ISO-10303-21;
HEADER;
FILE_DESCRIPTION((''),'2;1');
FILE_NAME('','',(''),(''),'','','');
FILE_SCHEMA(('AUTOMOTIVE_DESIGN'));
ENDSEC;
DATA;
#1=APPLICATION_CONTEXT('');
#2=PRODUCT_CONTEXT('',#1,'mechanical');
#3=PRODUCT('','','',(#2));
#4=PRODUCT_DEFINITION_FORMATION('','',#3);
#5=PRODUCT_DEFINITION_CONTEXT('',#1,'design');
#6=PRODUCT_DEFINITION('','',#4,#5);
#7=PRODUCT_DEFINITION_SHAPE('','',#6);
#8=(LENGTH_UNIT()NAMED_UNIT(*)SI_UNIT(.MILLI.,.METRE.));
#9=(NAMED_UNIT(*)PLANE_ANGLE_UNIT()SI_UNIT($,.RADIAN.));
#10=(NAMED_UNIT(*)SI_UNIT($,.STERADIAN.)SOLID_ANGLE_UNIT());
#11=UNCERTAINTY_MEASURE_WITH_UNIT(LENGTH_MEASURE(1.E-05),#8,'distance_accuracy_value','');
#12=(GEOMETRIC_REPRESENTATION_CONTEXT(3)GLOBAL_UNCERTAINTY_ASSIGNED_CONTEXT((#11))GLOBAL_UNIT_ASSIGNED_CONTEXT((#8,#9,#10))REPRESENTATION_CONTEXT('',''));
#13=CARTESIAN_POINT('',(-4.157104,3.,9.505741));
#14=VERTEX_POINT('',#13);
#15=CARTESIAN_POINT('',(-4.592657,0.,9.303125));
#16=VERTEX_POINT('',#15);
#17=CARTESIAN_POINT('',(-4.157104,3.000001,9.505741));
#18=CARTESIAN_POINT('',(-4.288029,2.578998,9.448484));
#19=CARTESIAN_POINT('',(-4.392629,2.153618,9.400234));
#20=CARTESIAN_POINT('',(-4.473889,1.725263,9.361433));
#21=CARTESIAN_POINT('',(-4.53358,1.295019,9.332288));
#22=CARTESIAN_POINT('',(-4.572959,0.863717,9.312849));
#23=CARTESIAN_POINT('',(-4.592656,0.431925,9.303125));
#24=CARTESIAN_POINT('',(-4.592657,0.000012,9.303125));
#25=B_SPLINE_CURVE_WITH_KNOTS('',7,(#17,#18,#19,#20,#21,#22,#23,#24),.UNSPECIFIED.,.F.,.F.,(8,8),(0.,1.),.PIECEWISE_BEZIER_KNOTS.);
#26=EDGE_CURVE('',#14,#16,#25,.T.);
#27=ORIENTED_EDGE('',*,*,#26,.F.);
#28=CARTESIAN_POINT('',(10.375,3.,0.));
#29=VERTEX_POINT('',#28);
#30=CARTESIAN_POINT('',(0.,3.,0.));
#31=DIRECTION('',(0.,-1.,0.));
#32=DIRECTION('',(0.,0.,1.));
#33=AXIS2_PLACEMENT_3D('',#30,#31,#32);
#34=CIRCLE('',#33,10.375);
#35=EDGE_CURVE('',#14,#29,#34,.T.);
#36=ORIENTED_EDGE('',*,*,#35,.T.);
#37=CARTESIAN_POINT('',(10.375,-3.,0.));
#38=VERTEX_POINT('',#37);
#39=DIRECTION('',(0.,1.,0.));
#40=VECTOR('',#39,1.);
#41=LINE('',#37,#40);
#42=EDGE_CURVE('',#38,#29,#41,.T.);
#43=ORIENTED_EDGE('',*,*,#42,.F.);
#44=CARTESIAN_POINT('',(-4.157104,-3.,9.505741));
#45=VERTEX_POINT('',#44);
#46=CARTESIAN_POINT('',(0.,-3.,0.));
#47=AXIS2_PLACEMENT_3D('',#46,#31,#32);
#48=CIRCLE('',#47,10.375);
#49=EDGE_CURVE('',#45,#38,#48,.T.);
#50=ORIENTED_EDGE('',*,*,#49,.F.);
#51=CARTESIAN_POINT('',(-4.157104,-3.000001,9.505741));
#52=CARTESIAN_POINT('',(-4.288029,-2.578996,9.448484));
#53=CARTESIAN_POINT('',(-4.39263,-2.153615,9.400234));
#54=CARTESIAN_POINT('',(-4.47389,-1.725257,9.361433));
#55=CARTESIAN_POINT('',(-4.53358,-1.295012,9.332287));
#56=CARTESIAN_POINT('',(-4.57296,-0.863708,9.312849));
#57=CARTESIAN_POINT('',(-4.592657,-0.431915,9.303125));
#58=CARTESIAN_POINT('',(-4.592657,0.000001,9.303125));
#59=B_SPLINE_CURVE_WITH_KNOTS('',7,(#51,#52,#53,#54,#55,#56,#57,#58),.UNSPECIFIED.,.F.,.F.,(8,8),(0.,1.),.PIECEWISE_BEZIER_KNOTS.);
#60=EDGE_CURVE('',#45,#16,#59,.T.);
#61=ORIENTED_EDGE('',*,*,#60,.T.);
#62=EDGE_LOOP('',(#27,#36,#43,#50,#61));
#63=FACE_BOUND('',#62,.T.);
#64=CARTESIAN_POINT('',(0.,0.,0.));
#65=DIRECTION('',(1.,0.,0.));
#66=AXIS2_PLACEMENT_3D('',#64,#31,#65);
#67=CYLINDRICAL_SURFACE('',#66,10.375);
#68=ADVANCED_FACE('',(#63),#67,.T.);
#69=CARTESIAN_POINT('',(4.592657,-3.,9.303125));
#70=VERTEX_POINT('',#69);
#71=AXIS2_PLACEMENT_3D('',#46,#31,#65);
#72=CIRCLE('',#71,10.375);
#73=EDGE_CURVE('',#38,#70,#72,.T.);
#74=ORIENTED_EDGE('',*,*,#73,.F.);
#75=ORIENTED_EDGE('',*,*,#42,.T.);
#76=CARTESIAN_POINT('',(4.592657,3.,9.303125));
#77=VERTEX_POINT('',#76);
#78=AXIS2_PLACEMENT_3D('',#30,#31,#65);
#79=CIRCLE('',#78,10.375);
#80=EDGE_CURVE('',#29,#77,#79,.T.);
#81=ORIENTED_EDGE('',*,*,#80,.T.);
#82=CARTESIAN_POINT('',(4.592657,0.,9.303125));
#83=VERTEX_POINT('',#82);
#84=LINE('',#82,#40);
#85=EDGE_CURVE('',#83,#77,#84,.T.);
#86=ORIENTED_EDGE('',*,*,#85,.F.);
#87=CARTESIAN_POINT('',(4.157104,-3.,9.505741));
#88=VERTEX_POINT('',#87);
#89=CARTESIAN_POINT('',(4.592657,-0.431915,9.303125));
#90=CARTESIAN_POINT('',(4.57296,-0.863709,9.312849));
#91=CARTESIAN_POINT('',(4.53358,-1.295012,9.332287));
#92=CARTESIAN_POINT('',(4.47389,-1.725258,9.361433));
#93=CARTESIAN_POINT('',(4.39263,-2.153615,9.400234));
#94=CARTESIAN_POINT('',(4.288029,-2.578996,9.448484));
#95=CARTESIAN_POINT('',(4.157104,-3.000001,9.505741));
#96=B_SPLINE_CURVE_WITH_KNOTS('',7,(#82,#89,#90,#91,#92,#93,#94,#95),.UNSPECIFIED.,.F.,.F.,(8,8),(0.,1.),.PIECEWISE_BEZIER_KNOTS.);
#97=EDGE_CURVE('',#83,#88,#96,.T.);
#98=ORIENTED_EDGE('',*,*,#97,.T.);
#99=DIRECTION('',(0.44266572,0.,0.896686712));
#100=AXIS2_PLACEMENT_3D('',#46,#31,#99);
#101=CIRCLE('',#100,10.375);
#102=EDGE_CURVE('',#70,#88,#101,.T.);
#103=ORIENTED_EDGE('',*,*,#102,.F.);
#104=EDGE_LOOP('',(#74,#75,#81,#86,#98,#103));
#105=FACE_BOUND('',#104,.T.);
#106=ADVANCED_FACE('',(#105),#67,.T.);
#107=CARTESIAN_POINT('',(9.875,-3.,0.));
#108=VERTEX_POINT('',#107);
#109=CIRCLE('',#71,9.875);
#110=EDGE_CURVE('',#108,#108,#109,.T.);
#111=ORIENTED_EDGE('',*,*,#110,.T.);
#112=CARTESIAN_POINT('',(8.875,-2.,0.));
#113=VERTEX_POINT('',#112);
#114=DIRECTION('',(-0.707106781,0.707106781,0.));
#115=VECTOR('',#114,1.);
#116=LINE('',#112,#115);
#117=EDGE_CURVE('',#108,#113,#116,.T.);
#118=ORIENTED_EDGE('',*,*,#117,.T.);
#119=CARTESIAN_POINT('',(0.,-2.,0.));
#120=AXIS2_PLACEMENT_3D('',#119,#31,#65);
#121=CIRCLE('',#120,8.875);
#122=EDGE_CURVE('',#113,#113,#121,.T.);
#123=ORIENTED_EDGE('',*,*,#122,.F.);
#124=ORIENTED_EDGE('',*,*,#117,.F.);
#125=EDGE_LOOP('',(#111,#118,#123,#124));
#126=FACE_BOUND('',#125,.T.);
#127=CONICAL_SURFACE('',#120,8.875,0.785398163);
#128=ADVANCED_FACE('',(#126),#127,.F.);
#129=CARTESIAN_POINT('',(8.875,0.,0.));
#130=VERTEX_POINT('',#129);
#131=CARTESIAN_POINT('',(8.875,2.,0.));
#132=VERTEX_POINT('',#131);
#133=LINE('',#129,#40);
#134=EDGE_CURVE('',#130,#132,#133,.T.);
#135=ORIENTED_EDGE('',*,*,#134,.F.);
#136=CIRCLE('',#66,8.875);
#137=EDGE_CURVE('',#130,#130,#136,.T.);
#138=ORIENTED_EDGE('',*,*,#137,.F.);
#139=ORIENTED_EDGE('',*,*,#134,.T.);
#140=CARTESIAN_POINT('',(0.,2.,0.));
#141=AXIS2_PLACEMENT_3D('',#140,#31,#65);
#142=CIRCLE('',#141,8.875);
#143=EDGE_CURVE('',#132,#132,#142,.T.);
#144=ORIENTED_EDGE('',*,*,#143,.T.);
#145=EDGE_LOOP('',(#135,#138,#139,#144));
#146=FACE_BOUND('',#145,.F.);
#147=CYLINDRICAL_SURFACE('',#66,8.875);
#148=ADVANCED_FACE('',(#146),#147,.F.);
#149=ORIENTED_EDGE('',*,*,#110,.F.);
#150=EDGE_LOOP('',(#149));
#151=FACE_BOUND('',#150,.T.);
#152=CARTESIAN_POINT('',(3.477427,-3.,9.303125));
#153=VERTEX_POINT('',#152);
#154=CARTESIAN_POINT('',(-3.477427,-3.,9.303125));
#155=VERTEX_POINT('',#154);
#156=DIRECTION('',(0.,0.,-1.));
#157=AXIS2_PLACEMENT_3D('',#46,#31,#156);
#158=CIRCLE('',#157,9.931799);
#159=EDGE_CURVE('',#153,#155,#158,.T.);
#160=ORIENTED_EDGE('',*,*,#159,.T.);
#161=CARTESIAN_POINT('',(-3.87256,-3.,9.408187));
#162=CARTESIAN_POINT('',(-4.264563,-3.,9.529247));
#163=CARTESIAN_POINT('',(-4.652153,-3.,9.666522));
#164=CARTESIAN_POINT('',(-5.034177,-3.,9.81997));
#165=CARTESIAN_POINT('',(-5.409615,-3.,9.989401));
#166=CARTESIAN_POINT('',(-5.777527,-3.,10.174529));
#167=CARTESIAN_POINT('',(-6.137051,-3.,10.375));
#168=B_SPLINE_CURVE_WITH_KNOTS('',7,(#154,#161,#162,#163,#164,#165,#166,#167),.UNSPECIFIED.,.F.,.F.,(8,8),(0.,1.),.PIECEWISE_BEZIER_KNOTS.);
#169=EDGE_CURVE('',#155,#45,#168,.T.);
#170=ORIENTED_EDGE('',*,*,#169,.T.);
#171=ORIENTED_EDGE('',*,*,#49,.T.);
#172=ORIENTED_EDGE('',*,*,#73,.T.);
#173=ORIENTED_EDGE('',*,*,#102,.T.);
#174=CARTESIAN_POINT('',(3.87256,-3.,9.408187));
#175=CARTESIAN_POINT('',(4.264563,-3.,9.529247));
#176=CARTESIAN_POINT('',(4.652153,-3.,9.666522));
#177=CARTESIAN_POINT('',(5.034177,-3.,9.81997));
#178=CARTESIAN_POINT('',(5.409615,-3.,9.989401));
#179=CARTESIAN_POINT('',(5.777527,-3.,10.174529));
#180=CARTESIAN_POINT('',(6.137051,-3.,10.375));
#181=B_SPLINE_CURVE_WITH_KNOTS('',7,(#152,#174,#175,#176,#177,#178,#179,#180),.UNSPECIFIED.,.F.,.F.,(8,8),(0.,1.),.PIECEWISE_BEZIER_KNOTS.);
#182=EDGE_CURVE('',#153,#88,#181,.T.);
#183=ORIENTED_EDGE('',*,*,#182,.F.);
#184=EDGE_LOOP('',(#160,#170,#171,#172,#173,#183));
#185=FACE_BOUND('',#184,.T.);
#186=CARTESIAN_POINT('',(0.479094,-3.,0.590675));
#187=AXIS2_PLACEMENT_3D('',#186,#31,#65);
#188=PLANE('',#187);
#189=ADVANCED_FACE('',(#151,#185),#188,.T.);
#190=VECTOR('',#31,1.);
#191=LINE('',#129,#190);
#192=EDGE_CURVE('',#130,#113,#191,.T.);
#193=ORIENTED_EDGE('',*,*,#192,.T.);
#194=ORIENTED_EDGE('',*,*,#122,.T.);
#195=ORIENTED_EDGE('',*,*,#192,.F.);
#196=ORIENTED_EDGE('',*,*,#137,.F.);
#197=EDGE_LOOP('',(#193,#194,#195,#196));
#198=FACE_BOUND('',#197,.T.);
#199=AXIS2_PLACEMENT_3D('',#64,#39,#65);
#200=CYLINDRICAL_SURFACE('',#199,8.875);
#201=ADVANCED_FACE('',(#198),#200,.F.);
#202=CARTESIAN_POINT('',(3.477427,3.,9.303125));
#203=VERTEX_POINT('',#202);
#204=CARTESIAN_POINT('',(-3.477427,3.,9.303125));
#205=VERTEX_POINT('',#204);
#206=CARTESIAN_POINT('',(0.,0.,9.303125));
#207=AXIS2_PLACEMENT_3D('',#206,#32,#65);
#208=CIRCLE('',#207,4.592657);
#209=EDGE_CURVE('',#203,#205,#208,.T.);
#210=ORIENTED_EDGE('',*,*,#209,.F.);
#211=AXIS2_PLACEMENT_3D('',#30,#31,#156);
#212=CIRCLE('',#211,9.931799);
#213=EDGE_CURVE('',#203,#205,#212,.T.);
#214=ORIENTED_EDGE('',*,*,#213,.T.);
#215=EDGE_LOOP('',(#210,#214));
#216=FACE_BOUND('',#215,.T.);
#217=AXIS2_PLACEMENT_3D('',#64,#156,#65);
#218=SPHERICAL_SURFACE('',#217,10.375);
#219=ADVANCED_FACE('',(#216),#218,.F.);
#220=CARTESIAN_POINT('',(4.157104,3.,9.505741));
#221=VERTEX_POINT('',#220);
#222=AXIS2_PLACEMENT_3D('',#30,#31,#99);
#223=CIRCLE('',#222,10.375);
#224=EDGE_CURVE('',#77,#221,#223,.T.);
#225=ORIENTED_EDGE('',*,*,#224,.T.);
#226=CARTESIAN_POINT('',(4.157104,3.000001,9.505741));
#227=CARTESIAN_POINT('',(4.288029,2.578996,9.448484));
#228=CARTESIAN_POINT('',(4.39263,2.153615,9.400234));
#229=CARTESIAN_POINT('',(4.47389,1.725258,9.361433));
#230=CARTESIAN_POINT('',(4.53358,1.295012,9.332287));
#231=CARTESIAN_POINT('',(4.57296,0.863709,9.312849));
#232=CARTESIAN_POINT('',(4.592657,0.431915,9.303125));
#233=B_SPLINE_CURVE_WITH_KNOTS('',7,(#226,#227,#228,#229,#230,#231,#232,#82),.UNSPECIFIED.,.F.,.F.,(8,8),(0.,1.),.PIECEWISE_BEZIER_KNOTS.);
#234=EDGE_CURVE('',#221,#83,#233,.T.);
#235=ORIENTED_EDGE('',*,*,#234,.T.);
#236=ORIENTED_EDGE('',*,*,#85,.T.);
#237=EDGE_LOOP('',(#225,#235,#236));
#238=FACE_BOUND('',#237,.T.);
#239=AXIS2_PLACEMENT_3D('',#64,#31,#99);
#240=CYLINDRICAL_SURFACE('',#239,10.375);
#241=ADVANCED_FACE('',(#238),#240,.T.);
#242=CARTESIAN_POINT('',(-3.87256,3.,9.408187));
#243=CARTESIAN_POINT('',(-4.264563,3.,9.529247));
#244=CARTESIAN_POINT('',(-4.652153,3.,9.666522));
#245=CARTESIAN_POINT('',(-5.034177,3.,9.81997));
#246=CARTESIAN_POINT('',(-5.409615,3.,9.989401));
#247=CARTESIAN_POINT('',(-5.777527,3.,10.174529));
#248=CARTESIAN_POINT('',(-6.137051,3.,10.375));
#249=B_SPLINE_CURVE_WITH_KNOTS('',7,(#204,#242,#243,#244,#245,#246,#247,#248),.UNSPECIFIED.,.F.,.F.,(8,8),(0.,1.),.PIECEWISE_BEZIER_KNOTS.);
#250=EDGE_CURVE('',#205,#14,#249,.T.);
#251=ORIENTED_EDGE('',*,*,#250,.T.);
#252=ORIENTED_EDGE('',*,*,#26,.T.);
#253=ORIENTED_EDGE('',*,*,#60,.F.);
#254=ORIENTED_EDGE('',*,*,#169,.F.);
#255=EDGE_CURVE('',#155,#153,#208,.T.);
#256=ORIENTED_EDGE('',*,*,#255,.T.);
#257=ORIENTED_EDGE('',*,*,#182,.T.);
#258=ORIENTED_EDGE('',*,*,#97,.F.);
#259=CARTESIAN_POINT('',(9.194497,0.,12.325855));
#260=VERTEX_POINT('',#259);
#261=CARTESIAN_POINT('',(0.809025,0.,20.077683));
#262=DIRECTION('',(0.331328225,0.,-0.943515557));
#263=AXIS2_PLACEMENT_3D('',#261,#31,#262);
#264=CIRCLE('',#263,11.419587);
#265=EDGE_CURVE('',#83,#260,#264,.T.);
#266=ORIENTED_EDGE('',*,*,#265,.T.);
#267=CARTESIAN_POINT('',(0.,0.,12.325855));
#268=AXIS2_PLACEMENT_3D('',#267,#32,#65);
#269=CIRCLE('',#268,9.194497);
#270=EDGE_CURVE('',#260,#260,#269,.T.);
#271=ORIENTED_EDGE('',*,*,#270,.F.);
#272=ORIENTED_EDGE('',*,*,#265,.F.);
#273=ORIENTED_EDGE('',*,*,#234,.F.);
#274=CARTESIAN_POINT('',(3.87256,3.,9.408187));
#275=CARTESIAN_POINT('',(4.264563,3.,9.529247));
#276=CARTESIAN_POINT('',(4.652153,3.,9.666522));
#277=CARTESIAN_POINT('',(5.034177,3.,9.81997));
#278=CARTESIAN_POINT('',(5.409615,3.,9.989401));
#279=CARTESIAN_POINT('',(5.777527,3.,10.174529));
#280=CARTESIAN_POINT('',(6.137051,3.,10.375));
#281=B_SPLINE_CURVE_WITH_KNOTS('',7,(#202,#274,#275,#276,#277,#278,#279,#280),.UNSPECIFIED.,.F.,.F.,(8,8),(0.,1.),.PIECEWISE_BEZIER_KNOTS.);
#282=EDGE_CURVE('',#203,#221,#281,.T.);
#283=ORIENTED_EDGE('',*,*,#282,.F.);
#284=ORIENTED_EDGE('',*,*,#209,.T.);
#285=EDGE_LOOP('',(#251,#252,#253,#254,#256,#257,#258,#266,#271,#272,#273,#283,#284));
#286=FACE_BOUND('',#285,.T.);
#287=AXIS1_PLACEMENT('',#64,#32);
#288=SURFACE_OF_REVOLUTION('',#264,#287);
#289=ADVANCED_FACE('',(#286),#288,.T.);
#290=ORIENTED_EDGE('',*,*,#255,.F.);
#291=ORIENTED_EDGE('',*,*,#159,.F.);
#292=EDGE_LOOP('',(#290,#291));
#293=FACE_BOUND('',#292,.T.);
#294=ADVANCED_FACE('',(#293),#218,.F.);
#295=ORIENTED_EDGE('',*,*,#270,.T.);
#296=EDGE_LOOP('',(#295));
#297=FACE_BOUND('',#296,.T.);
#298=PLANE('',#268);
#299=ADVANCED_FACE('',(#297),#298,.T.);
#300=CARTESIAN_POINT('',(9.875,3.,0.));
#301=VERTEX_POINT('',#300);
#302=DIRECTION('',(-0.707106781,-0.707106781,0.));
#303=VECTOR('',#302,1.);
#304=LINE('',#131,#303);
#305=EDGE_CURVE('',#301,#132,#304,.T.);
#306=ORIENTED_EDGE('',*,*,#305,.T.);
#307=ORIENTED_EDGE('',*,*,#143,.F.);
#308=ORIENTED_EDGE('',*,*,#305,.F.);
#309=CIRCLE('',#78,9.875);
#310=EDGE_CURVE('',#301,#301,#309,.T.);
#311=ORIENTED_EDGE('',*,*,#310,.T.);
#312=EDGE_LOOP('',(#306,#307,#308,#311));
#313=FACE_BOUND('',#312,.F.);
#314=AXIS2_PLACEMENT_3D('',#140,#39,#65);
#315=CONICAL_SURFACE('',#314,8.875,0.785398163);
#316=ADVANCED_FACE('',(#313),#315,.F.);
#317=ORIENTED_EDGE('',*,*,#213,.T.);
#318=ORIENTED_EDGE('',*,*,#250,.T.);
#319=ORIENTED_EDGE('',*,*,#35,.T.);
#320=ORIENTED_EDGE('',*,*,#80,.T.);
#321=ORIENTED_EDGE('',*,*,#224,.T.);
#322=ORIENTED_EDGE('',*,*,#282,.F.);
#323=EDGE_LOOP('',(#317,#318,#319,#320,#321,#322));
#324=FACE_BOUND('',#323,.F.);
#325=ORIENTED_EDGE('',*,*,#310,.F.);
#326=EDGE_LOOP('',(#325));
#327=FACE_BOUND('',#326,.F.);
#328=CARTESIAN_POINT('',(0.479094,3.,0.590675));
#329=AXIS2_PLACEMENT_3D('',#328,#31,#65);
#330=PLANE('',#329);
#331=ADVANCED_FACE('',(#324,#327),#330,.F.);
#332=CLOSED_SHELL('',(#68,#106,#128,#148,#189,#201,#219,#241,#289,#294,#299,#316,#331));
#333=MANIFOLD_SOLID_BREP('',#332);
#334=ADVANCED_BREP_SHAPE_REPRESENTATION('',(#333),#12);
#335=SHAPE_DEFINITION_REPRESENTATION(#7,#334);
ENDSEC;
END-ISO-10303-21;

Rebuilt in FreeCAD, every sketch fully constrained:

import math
import FreeCAD as App
import Part
import Sketcher

V = App.Vector
Q = App.Units.Quantity


def edges_at(feature, points):
    """Names of the edges that pass closest to the given points."""
    edges = feature.Shape.Edges
    near = lambda p: min(range(len(edges)), key=lambda i: edges[i].distToShape(Part.Vertex(*p))[0])
    return sorted({f"Edge{near(p) + 1}" for p in points})

doc = App.newDocument("Part")
params = doc.addObject("Spreadsheet::Sheet", "Params")
for row, (alias, value) in enumerate([
    ("revolution_angle", "360 deg"),
    ("sketch2_diameter", "17.75 mm"),
    ("pad1_length", "3 mm"),
    ("pad1_length2", "3 mm"),
    ("chamfer_size", "1 mm"),
], start=1):
    params.set(f"A{row}", alias)
    params.set(f"B{row}", "=" + value)
    params.setAlias(f"B{row}", alias)

body = doc.addObject("PartDesign::Body", "Body")

sketch1 = body.newObject("Sketcher::SketchObject", "Sketch")
sketch1.AttachmentSupport = (doc.getObject("XZ_Plane"), [""])
sketch1.MapMode = "FlatFace"
sketch1.addGeometry(Part.ArcOfCircle(Part.Circle(V(0, 0, 0), V(0, 0, 1), 10.375), math.radians(63.725911), math.radians(90)), False)
sketch1.addGeometry(Part.ArcOfCircle(Part.Circle(V(0.809025, 20.077683, 0), V(0, 0, 1), 11.419587), math.radians(-70.650587), math.radians(-42.75139)), False)
sketch1.addGeometry(Part.LineSegment(V(9.194497, 12.325855, 0), V(0, 12.325855, 0)), False)
sketch1.addGeometry(Part.LineSegment(V(0, 12.325855, 0), V(0, 10.375, 0)), False)
sketch1.addConstraint(Sketcher.Constraint("Coincident", 0, 1, 1, 1))
sketch1.addConstraint(Sketcher.Constraint("Coincident", 1, 2, 2, 1))
sketch1.addConstraint(Sketcher.Constraint("Coincident", 2, 2, 3, 1))
sketch1.addConstraint(Sketcher.Constraint("Coincident", 3, 2, 0, 2))
sketch1.addConstraint(Sketcher.Constraint("Horizontal", 2))
sketch1.addConstraint(Sketcher.Constraint("Vertical", 3))
sketch1.addConstraint(Sketcher.Constraint("Coincident", 0, 3, -1, 1))
sketch1.addConstraint(Sketcher.Constraint("PointOnObject", 2, 2, -2))
sketch1.addConstraint(Sketcher.Constraint("Radius", 0, Q("10.375 mm")))
sketch1.addConstraint(Sketcher.Constraint("Radius", 1, Q("11.419587 mm")))
sketch1.addConstraint(Sketcher.Constraint("DistanceX", 2, 2, 2, 1, Q("9.194497 mm")))
sketch1.addConstraint(Sketcher.Constraint("DistanceY", 3, 2, 3, 1, Q("1.950855 mm")))
sketch1.addConstraint(Sketcher.Constraint("DistanceX", 1, 3, 0, 1, Q("3.783631 mm")))
revolution = body.newObject("PartDesign::Revolution", "Revolution")
revolution.Profile = sketch1
revolution.ReferenceAxis = (sketch1, ["V_Axis"])
revolution.setExpression("Angle", "Params.revolution_angle")

sketch2 = body.newObject("Sketcher::SketchObject", "Sketch001")
sketch2.AttachmentSupport = (doc.getObject("XZ_Plane"), [""])
sketch2.MapMode = "FlatFace"
sketch2.addGeometry(Part.ArcOfCircle(Part.Circle(V(0, 0, 0), V(0, 0, 1), 10.375), math.radians(90), math.radians(360)), False)
sketch2.addGeometry(Part.ArcOfCircle(Part.Circle(V(0, 0, 0), V(0, 0, 1), 10.375), math.radians(0), math.radians(63.725911)), False)
sketch2.addGeometry(Part.ArcOfCircle(Part.Circle(V(0, 0, 0), V(0, 0, 1), 10.375), math.radians(63.725911), math.radians(90)), False)
sketch2.addGeometry(Part.Circle(V(0, 0, 0), V(0, 0, 1), 8.875), False)
sketch2.addConstraint(Sketcher.Constraint("Tangent", 0, 2, 1, 1))
sketch2.addConstraint(Sketcher.Constraint("Tangent", 1, 2, 2, 1))
sketch2.addConstraint(Sketcher.Constraint("Tangent", 2, 2, 0, 1))
sketch2.addConstraint(Sketcher.Constraint("Coincident", 0, 3, -1, 1))
sketch2.addConstraint(Sketcher.Constraint("Coincident", 3, 3, -1, 1))
sketch2.addConstraint(Sketcher.Constraint("PointOnObject", 0, 2, -1))
sketch2.addConstraint(Sketcher.Constraint("PointOnObject", 2, 2, -2))
sketch2.addConstraint(Sketcher.Constraint("Diameter", 3, Q("17.75 mm")))
sketch2.addConstraint(Sketcher.Constraint("Radius", 0, Q("10.375 mm")))
sketch2.addConstraint(Sketcher.Constraint("DistanceX", -1, 1, 1, 2, Q("4.592657 mm")))
sketch2.setExpression("Constraints[7]", "Params.sketch2_diameter")
pad1 = body.newObject("PartDesign::Pad", "Pad")
pad1.Profile = sketch2
pad1.Type = "TwoLengths"
pad1.setExpression("Length", "Params.pad1_length")
pad1.setExpression("Length2", "Params.pad1_length2")
doc.recompute()

chamfer = body.newObject("PartDesign::Chamfer", "Chamfer")
chamfer.Base = (pad1, edges_at(pad1, [(-8.875, -3, 0), (-8.875, 3, 0)]))
chamfer.setExpression("Size", "Params.chamfer_size")

doc.recompute()
